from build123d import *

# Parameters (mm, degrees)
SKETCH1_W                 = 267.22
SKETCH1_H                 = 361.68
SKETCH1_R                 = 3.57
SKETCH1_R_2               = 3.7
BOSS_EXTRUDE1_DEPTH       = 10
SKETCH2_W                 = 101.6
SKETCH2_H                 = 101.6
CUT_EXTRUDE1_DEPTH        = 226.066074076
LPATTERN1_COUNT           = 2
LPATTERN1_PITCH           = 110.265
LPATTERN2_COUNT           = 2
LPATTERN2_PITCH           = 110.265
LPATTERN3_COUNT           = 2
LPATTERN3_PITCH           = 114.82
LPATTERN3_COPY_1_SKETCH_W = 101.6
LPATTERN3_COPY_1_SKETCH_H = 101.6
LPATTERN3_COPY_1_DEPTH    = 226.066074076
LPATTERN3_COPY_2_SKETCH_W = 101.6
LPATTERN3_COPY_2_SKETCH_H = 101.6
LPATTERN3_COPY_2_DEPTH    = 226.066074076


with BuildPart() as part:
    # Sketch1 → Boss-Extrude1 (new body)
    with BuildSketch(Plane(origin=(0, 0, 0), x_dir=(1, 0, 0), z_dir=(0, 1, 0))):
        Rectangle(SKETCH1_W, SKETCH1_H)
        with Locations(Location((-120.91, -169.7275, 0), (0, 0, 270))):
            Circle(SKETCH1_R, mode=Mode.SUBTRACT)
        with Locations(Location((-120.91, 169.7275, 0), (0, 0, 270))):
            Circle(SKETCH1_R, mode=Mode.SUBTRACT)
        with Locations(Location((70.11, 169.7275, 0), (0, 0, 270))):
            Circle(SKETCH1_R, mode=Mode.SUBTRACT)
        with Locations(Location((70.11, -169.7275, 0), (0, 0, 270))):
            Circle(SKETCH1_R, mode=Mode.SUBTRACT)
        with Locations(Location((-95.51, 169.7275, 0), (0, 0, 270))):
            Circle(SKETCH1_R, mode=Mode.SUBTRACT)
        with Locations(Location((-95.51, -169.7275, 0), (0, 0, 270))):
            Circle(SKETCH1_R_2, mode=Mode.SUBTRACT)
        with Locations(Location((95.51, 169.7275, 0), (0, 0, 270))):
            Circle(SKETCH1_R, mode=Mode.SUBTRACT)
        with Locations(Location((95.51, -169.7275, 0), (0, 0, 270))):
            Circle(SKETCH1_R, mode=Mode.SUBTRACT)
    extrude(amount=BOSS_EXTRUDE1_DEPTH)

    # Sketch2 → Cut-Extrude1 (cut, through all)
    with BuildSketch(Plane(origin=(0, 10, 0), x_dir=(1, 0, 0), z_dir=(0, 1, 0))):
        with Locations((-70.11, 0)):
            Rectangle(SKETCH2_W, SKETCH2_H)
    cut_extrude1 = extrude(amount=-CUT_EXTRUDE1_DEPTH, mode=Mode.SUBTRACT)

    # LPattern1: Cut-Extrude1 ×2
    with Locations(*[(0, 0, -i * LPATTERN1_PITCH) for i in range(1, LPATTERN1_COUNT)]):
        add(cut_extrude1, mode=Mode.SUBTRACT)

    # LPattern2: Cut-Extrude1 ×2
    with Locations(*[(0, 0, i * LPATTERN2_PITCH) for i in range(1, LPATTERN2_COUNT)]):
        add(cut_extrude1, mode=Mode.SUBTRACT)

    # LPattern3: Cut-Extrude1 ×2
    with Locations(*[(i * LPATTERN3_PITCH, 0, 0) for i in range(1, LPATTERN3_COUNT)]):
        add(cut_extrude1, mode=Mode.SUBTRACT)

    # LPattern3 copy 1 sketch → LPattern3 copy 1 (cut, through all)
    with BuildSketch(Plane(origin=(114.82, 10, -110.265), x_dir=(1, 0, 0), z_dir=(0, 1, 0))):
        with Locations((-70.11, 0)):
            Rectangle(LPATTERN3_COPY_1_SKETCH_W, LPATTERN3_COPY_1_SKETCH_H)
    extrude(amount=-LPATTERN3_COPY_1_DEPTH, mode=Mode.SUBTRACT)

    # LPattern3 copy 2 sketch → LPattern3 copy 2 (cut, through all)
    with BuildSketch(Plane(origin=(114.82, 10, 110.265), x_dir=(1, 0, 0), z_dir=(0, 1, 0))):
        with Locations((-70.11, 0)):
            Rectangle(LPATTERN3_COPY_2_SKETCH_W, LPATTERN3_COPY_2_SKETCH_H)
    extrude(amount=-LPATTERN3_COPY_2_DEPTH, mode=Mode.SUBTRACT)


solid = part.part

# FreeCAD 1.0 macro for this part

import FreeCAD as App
import Part
import Sketcher
from FreeCAD import Vector

doc = App.newDocument("Part")
body = doc.addObject("PartDesign::Body", "Body")

sketch1 = doc.addObject("Sketcher::SketchObject", "Sketch")
body.addObject(sketch1)
sketch1.AttachmentSupport = (doc.XZ_Plane, [""])
sketch1.MapMode = "FlatFace"
sketch1.addGeometry(Part.LineSegment(Vector(-133.6, -180.8, 0), Vector(-133.6, 180.8, 0)), False)
sketch1.addGeometry(Part.LineSegment(Vector(-133.6, 180.8, 0), Vector(133.6, 180.8, 0)), False)
sketch1.addGeometry(Part.LineSegment(Vector(133.6, 180.8, 0), Vector(133.6, -180.8, 0)), False)
sketch1.addGeometry(Part.LineSegment(Vector(133.6, -180.8, 0), Vector(-133.6, -180.8, 0)), False)
sketch1.addGeometry(Part.Circle(Vector(-120.9, 169.7, 0), Vector(0, 0, 1), 3.6), False)
sketch1.addGeometry(Part.Circle(Vector(-95.5, 169.7, 0), Vector(0, 0, 1), 3.7), False)
sketch1.addGeometry(Part.Circle(Vector(70.1, 169.7, 0), Vector(0, 0, 1), 3.6), False)
sketch1.addGeometry(Part.Circle(Vector(95.5, 169.7, 0), Vector(0, 0, 1), 3.6), False)
sketch1.addGeometry(Part.Circle(Vector(-120.9, -169.7, 0), Vector(0, 0, 1), 3.6), False)
sketch1.addGeometry(Part.Circle(Vector(-95.5, -169.7, 0), Vector(0, 0, 1), 3.6), False)
sketch1.addGeometry(Part.Circle(Vector(70.1, -169.7, 0), Vector(0, 0, 1), 3.6), False)
sketch1.addGeometry(Part.Circle(Vector(95.5, -169.7, 0), Vector(0, 0, 1), 3.6), False)
sketch1.addConstraint(Sketcher.Constraint("Coincident", 0, 2, 1, 1))
sketch1.addConstraint(Sketcher.Constraint("Coincident", 1, 2, 2, 1))
sketch1.addConstraint(Sketcher.Constraint("Coincident", 2, 2, 3, 1))
sketch1.addConstraint(Sketcher.Constraint("Coincident", 3, 2, 0, 1))
sketch1.addConstraint(Sketcher.Constraint("Vertical", 0))
sketch1.addConstraint(Sketcher.Constraint("Horizontal", 1))
sketch1.addConstraint(Sketcher.Constraint("Vertical", 2))
sketch1.addConstraint(Sketcher.Constraint("Horizontal", 3))
sketch1.addConstraint(Sketcher.Constraint("Equal", 4, 6))
sketch1.addConstraint(Sketcher.Constraint("Equal", 6, 7))
sketch1.addConstraint(Sketcher.Constraint("Equal", 7, 8))
sketch1.addConstraint(Sketcher.Constraint("Equal", 8, 9))
sketch1.addConstraint(Sketcher.Constraint("Equal", 9, 10))
sketch1.addConstraint(Sketcher.Constraint("Equal", 10, 11))
sketch1.addConstraint(Sketcher.Constraint("Symmetric", 7, 3, 9, 3, -1, 1))
sketch1.addConstraint(Sketcher.Constraint("Symmetric", 5, 3, 11, 3, -1, 1))
sketch1.addConstraint(Sketcher.Constraint("Symmetric", 0, 2, 2, 2, -1, 1))
sketch1.addConstraint(Sketcher.Constraint("Symmetric", 5, 3, 7, 3, -2))
sketch1.addConstraint(Sketcher.Constraint("Symmetric", 4, 3, 8, 3, -1))
sketch1.addConstraint(Sketcher.Constraint("Symmetric", 6, 3, 10, 3, -1))
sketch1.addConstraint(Sketcher.Constraint("Horizontal", 4, 3, 5, 3))
sketch1.addConstraint(Sketcher.Constraint("Horizontal", 5, 3, 6, 3))
sketch1.addConstraint(Sketcher.Constraint("Diameter", 5, 7.4))
sketch1.addConstraint(Sketcher.Constraint("Diameter", 4, 7.14))
sketch1.addConstraint(Sketcher.Constraint("DistanceX", 1, 1, 1, 2, 267.22))
sketch1.addConstraint(Sketcher.Constraint("DistanceY", 0, 1, 0, 2, 361.68))
sketch1.addConstraint(Sketcher.Constraint("DistanceX", 4, 3, 5, 3, 25.4))
sketch1.addConstraint(Sketcher.Constraint("DistanceX", 6, 3, 7, 3, 25.4))
sketch1.addConstraint(Sketcher.Constraint("DistanceX", 0, 2, 4, 3, 12.7))
sketch1.addConstraint(Sketcher.Constraint("DistanceY", 8, 3, 4, 3, 339.455))
pad1 = doc.addObject("PartDesign::Pad", "Pad")
body.addObject(pad1)
pad1.Profile = sketch1
pad1.Length = 10
pad1.Reversed = True

sketch2 = doc.addObject("Sketcher::SketchObject", "Sketch001")
body.addObject(sketch2)
sketch2.AttachmentSupport = (doc.XZ_Plane, [""])
sketch2.MapMode = "FlatFace"
sketch2.AttachmentOffset = App.Placement(Vector(0, 0, -10), App.Rotation())
sketch2.addGeometry(Part.LineSegment(Vector(-121, -51, 0), Vector(-121, 51, 0)), False)
sketch2.addGeometry(Part.LineSegment(Vector(-121, 51, 0), Vector(-19, 51, 0)), False)
sketch2.addGeometry(Part.LineSegment(Vector(-19, 51, 0), Vector(-19, -51, 0)), False)
sketch2.addGeometry(Part.LineSegment(Vector(-19, -51, 0), Vector(-121, -51, 0)), False)
sketch2.addConstraint(Sketcher.Constraint("Coincident", 0, 2, 1, 1))
sketch2.addConstraint(Sketcher.Constraint("Coincident", 1, 2, 2, 1))
sketch2.addConstraint(Sketcher.Constraint("Coincident", 2, 2, 3, 1))
sketch2.addConstraint(Sketcher.Constraint("Coincident", 3, 2, 0, 1))
sketch2.addConstraint(Sketcher.Constraint("Vertical", 0))
sketch2.addConstraint(Sketcher.Constraint("Horizontal", 1))
sketch2.addConstraint(Sketcher.Constraint("Vertical", 2))
sketch2.addConstraint(Sketcher.Constraint("Horizontal", 3))
sketch2.addConstraint(Sketcher.Constraint("Equal", 3, 0))
sketch2.addConstraint(Sketcher.Constraint("DistanceX", 1, 1, 1, 2, 101.6))
sketch2.addConstraint(Sketcher.Constraint("DistanceY", -1, 1, 0, 2, 50.8))
sketch2.addConstraint(Sketcher.Constraint("DistanceX", 0, 2, -1, 1, 120.91))
pocket1 = doc.addObject("PartDesign::Pocket", "Pocket")
body.addObject(pocket1)
pocket1.Profile = sketch2
pocket1.Type = "ThroughAll"
pocket1.Reversed = True
doc.recompute()

linearpattern = doc.addObject("PartDesign::LinearPattern", "LinearPattern")
body.addObject(linearpattern)
linearpattern.Originals = [pocket1]
linearpattern.Direction = (doc.Z_Axis, [""])
linearpattern.Mode = "offset"
linearpattern.Offset = 110.265
linearpattern.Occurrences = 2
linearpattern.Reversed = True
body.Tip = linearpattern
doc.recompute()

linearpattern2 = doc.addObject("PartDesign::LinearPattern", "LinearPattern001")
body.addObject(linearpattern2)
linearpattern2.Originals = [pocket1]
linearpattern2.Direction = (doc.Z_Axis, [""])
linearpattern2.Mode = "offset"
linearpattern2.Offset = 110.265
linearpattern2.Occurrences = 2
body.Tip = linearpattern2
doc.recompute()

linearpattern3 = doc.addObject("PartDesign::LinearPattern", "LinearPattern002")
body.addObject(linearpattern3)
linearpattern3.Originals = [pocket1]
linearpattern3.Direction = (doc.X_Axis, [""])
linearpattern3.Mode = "offset"
linearpattern3.Offset = 114.82
linearpattern3.Occurrences = 2
body.Tip = linearpattern3

sketch3 = doc.addObject("Sketcher::SketchObject", "Sketch002")
body.addObject(sketch3)
sketch3.AttachmentSupport = (doc.XZ_Plane, [""])
sketch3.MapMode = "FlatFace"
sketch3.AttachmentOffset = App.Placement(Vector(0, 0, -10), App.Rotation())
sketch3.addGeometry(Part.LineSegment(Vector(-6, -161, 0), Vector(-6, -59, 0)), False)
sketch3.addGeometry(Part.LineSegment(Vector(-6, -59, 0), Vector(96, -59, 0)), False)
sketch3.addGeometry(Part.LineSegment(Vector(96, -59, 0), Vector(96, -161, 0)), False)
sketch3.addGeometry(Part.LineSegment(Vector(96, -161, 0), Vector(-6, -161, 0)), False)
sketch3.addConstraint(Sketcher.Constraint("Coincident", 0, 2, 1, 1))
sketch3.addConstraint(Sketcher.Constraint("Coincident", 1, 2, 2, 1))
sketch3.addConstraint(Sketcher.Constraint("Coincident", 2, 2, 3, 1))
sketch3.addConstraint(Sketcher.Constraint("Coincident", 3, 2, 0, 1))
sketch3.addConstraint(Sketcher.Constraint("Vertical", 0))
sketch3.addConstraint(Sketcher.Constraint("Horizontal", 1))
sketch3.addConstraint(Sketcher.Constraint("Vertical", 2))
sketch3.addConstraint(Sketcher.Constraint("Horizontal", 3))
sketch3.addConstraint(Sketcher.Constraint("Equal", 3, 0))
sketch3.addConstraint(Sketcher.Constraint("DistanceX", 1, 1, 1, 2, 101.6))
sketch3.addConstraint(Sketcher.Constraint("DistanceX", 0, 2, -1, 1, 6.09))
sketch3.addConstraint(Sketcher.Constraint("DistanceY", 0, 2, -1, 1, 59.465))
pocket2 = doc.addObject("PartDesign::Pocket", "Pocket001")
body.addObject(pocket2)
pocket2.Profile = sketch3
pocket2.Type = "ThroughAll"
pocket2.Reversed = True

sketch4 = doc.addObject("Sketcher::SketchObject", "Sketch003")
body.addObject(sketch4)
sketch4.AttachmentSupport = (doc.XZ_Plane, [""])
sketch4.MapMode = "FlatFace"
sketch4.AttachmentOffset = App.Placement(Vector(0, 0, -10), App.Rotation())
sketch4.addGeometry(Part.LineSegment(Vector(-6, 59, 0), Vector(-6, 161, 0)), False)
sketch4.addGeometry(Part.LineSegment(Vector(-6, 161, 0), Vector(96, 161, 0)), False)
sketch4.addGeometry(Part.LineSegment(Vector(96, 161, 0), Vector(96, 59, 0)), False)
sketch4.addGeometry(Part.LineSegment(Vector(96, 59, 0), Vector(-6, 59, 0)), False)
sketch4.addConstraint(Sketcher.Constraint("Coincident", 0, 2, 1, 1))
sketch4.addConstraint(Sketcher.Constraint("Coincident", 1, 2, 2, 1))
sketch4.addConstraint(Sketcher.Constraint("Coincident", 2, 2, 3, 1))
sketch4.addConstraint(Sketcher.Constraint("Coincident", 3, 2, 0, 1))
sketch4.addConstraint(Sketcher.Constraint("Vertical", 0))
sketch4.addConstraint(Sketcher.Constraint("Horizontal", 1))
sketch4.addConstraint(Sketcher.Constraint("Vertical", 2))
sketch4.addConstraint(Sketcher.Constraint("Horizontal", 3))
sketch4.addConstraint(Sketcher.Constraint("Equal", 3, 0))
sketch4.addConstraint(Sketcher.Constraint("DistanceX", 1, 1, 1, 2, 101.6))
sketch4.addConstraint(Sketcher.Constraint("DistanceX", 0, 2, -1, 1, 6.09))
sketch4.addConstraint(Sketcher.Constraint("DistanceY", -1, 1, 0, 2, 161.065))
pocket3 = doc.addObject("PartDesign::Pocket", "Pocket002")
body.addObject(pocket3)
pocket3.Profile = sketch4
pocket3.Type = "ThroughAll"
pocket3.Reversed = True

doc.recompute()
